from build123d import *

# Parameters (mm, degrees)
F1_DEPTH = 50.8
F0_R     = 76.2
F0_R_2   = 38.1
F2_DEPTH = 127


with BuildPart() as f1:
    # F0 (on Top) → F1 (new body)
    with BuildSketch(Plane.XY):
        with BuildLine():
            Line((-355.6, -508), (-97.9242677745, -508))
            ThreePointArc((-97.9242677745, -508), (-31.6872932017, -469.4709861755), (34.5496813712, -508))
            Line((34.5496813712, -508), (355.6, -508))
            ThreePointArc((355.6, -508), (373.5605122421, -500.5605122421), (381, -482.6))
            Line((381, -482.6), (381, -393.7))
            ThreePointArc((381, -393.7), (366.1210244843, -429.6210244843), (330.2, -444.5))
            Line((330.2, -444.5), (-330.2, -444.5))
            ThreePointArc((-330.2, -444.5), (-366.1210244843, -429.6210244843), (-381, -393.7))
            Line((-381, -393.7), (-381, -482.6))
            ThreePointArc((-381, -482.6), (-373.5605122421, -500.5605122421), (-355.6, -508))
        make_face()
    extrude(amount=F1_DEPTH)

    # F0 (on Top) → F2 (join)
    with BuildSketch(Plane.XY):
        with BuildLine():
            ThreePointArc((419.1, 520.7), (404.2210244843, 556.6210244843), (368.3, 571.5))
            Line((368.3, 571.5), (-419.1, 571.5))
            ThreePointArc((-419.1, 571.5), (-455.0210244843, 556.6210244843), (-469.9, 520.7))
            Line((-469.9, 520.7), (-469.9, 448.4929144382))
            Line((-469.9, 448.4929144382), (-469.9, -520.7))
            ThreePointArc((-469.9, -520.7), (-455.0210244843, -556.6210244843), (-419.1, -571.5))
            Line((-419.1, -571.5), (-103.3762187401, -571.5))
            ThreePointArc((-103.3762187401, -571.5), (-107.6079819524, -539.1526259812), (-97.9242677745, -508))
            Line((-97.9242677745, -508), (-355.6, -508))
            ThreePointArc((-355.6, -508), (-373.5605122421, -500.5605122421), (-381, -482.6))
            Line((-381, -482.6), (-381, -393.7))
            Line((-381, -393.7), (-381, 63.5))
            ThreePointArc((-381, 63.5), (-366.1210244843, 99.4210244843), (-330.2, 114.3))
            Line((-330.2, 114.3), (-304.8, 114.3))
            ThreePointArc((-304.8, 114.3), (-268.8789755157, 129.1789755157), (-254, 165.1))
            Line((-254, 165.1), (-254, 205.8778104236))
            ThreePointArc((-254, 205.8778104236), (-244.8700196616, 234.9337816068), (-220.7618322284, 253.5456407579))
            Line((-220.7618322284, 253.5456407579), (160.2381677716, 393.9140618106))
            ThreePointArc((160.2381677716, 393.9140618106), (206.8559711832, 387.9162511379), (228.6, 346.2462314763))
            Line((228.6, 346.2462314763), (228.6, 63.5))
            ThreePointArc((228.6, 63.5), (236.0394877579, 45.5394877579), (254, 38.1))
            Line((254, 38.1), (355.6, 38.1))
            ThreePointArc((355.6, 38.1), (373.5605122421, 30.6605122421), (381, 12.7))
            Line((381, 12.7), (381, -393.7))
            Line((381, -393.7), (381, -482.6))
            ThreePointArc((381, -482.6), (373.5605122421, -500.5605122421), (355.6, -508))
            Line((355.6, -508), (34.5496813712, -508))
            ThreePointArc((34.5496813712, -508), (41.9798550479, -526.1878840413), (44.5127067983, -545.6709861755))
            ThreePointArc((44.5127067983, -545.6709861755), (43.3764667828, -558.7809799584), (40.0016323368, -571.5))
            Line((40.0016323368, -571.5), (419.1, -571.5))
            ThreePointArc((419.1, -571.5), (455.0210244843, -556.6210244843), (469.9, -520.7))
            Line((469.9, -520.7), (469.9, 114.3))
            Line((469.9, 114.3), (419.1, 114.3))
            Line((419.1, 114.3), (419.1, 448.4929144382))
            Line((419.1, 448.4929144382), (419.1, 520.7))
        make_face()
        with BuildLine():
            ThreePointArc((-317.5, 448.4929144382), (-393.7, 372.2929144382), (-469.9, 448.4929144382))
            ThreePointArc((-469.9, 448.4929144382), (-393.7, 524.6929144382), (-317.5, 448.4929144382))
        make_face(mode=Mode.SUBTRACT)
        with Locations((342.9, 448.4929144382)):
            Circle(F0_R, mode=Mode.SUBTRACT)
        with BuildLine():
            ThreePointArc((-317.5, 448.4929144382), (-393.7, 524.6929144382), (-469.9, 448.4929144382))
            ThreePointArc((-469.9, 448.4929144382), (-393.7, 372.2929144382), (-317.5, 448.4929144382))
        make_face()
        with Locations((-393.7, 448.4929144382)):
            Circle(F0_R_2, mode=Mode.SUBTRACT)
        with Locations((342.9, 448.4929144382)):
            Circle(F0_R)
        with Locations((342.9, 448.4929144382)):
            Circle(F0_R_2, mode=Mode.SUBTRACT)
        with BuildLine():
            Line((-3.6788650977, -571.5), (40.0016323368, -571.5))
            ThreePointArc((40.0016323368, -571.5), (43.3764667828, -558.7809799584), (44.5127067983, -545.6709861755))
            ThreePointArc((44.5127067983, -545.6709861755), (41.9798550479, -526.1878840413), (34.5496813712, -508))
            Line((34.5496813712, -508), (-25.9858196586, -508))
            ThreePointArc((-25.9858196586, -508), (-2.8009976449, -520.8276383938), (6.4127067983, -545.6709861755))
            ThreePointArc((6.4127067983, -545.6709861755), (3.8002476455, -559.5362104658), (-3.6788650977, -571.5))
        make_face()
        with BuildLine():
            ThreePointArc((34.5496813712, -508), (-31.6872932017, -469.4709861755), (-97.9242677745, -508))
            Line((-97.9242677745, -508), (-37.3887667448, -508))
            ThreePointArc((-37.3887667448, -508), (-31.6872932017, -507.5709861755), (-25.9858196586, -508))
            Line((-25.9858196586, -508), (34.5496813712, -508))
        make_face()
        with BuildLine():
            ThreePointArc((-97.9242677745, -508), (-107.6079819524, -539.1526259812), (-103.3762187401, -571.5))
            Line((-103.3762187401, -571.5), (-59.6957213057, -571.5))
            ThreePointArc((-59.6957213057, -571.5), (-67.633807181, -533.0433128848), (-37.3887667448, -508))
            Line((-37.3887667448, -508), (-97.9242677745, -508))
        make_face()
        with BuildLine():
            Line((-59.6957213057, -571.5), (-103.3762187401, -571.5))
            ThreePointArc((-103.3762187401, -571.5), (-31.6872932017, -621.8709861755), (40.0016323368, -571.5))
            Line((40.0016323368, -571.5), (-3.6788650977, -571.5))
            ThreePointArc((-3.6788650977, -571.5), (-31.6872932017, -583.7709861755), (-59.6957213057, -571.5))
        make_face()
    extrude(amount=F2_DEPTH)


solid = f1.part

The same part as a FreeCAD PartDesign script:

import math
import FreeCAD as App
import Part
import Sketcher
from FreeCAD import Vector
Q = App.Units.Quantity

doc = App.newDocument("Part")
body = doc.addObject("PartDesign::Body", "Body")

# Sketch on XY plane
sketch1 = body.newObject("Sketcher::SketchObject", "Sketch")
sketch1.AttachmentSupport = (doc.getObject("XY_Plane"), [""])
sketch1.MapMode = "FlatFace"
sketch1.addGeometry([
    Part.LineSegment(Vector(-356, -508, 0), Vector(-98, -508, 0)),  # 0
    Part.ArcOfCircle(Part.Circle(Vector(-32, -546, 0), Vector(0, 0, 1), 76), math.radians(30), math.radians(150)),  # 1
    Part.LineSegment(Vector(35, -508, 0), Vector(356, -508, 0)),  # 2
    Part.ArcOfCircle(Part.Circle(Vector(356, -483, 0), Vector(0, 0, 1), 25), math.radians(-90), math.radians(0)),  # 3
    Part.LineSegment(Vector(381, -483, 0), Vector(381, -394, 0)),  # 4
    Part.ArcOfCircle(Part.Circle(Vector(330, -394, 0), Vector(0, 0, 1), 51), math.radians(-90), math.radians(0)),  # 5
    Part.LineSegment(Vector(330, -444, 0), Vector(-330, -444, 0)),  # 6
    Part.ArcOfCircle(Part.Circle(Vector(-330, -394, 0), Vector(0, 0, 1), 51), math.radians(180), math.radians(270)),  # 7
    Part.LineSegment(Vector(-381, -394, 0), Vector(-381, -483, 0)),  # 8
    Part.ArcOfCircle(Part.Circle(Vector(-356, -483, 0), Vector(0, 0, 1), 25), math.radians(180), math.radians(270)),  # 9
], False)
sketch1.addConstraint([
    Sketcher.Constraint("Coincident", 0, 2, 1, 2),
    Sketcher.Constraint("Coincident", 1, 1, 2, 1),
    Sketcher.Constraint("Tangent", 2, 2, 3, 1),
    Sketcher.Constraint("Tangent", 3, 2, 4, 1),
    Sketcher.Constraint("Tangent", 4, 2, 5, 2),
    Sketcher.Constraint("Tangent", 5, 1, 6, 1),
    Sketcher.Constraint("Tangent", 6, 2, 7, 2),
    Sketcher.Constraint("Tangent", 7, 1, 8, 1),
    Sketcher.Constraint("Tangent", 8, 2, 9, 1),
    Sketcher.Constraint("Tangent", 9, 2, 0, 1),
    Sketcher.Constraint("Horizontal", 0),
    Sketcher.Constraint("Horizontal", 2),
    Sketcher.Constraint("Vertical", 4),
    Sketcher.Constraint("Horizontal", 6),
    Sketcher.Constraint("Vertical", 8),
    Sketcher.Constraint("Equal", 5, 7),
    Sketcher.Constraint("Equal", 3, 9),
    Sketcher.Constraint("Symmetric", 3, 3, 9, 3, -2),
    Sketcher.Constraint("Radius", 1, Q("3 in")),
    Sketcher.Constraint("Radius", 3, Q("1 in")),
    Sketcher.Constraint("Radius", 5, Q("2 in")),
    Sketcher.Constraint("DistanceX", 6, 2, 6, 1, Q("26 in")),
    Sketcher.Constraint("DistanceY", 4, 1, 4, 2, Q("3.5 in")),
    Sketcher.Constraint("DistanceY", 3, 3, -1, 1, Q("19 in")),
    Sketcher.Constraint("DistanceX", 2, 1, 2, 2, Q("321.050319 mm")),
    Sketcher.Constraint("DistanceX", 0, 1, 0, 2, Q("257.675732 mm")),
])
pad1 = body.newObject("PartDesign::Pad", "Pad")
pad1.Profile = sketch1
pad1.Length = Q("2 in")

# Sketch on XY plane
sketch2 = body.newObject("Sketcher::SketchObject", "Sketch001")
sketch2.AttachmentSupport = (doc.getObject("XY_Plane"), [""])
sketch2.MapMode = "FlatFace"
sketch2.addGeometry([
    Part.LineSegment(Vector(-419, -572, 0), Vector(-103, -572, 0)),  # 0
    Part.ArcOfCircle(Part.Circle(Vector(-32, -546, 0), Vector(0, 0, 1), 76), math.radians(-160), math.radians(-20)),  # 1
    Part.LineSegment(Vector(40, -572, 0), Vector(419, -572, 0)),  # 2
    Part.ArcOfCircle(Part.Circle(Vector(419, -521, 0), Vector(0, 0, 1), 51), math.radians(-90), math.radians(0)),  # 3
    Part.LineSegment(Vector(470, -521, 0), Vector(470, 114, 0)),  # 4
    Part.LineSegment(Vector(470, 114, 0), Vector(419, 114, 0)),  # 5
    Part.LineSegment(Vector(419, 114, 0), Vector(419, 521, 0)),  # 6
    Part.ArcOfCircle(Part.Circle(Vector(368, 521, 0), Vector(0, 0, 1), 51), math.radians(0), math.radians(90)),  # 7
    Part.LineSegment(Vector(368, 572, 0), Vector(-419, 572, 0)),  # 8
    Part.ArcOfCircle(Part.Circle(Vector(-419, 521, 0), Vector(0, 0, 1), 51), math.radians(90), math.radians(180)),  # 9
    Part.LineSegment(Vector(-470, 521, 0), Vector(-470, -521, 0)),  # 10
    Part.ArcOfCircle(Part.Circle(Vector(-419, -521, 0), Vector(0, 0, 1), 51), math.radians(180), math.radians(270)),  # 11
    Part.ArcOfCircle(Part.Circle(Vector(-32, -546, 0), Vector(0, 0, 1), 38), math.radians(99), math.radians(223)),  # 12
    Part.ArcOfCircle(Part.Circle(Vector(-32, -546, 0), Vector(0, 0, 1), 38), math.radians(81.39), math.radians(98.61)),  # 13
    Part.ArcOfCircle(Part.Circle(Vector(-32, -546, 0), Vector(0, 0, 1), 38), math.radians(-43), math.radians(81)),  # 14
    Part.ArcOfCircle(Part.Circle(Vector(-32, -546, 0), Vector(0, 0, 1), 38), math.radians(-137), math.radians(-43)),  # 15
    Part.ArcOfCircle(Part.Circle(Vector(-32, -546, 0), Vector(0, 0, 1), 76), math.radians(30), math.radians(150)),  # 16
    Part.LineSegment(Vector(-98, -508, 0), Vector(-356, -508, 0)),  # 17
    Part.ArcOfCircle(Part.Circle(Vector(-356, -483, 0), Vector(0, 0, 1), 25), math.radians(180), math.radians(270)),  # 18
    Part.LineSegment(Vector(-381, -483, 0), Vector(-381, 64, 0)),  # 19
    Part.ArcOfCircle(Part.Circle(Vector(-330, 64, 0), Vector(0, 0, 1), 51), math.radians(90), math.radians(180)),  # 20
    Part.LineSegment(Vector(-330, 114, 0), Vector(-305, 114, 0)),  # 21
    Part.ArcOfCircle(Part.Circle(Vector(-305, 165, 0), Vector(0, 0, 1), 51), math.radians(-90), math.radians(0)),  # 22
    Part.LineSegment(Vector(-254, 165, 0), Vector(-254, 206, 0)),  # 23
    Part.ArcOfCircle(Part.Circle(Vector(-203, 206, 0), Vector(0, 0, 1), 51), math.radians(110), math.radians(180)),  # 24
    Part.LineSegment(Vector(-221, 254, 0), Vector(160, 394, 0)),  # 25
    Part.ArcOfCircle(Part.Circle(Vector(178, 346, 0), Vector(0, 0, 1), 51), math.radians(0), math.radians(110)),  # 26
    Part.LineSegment(Vector(229, 346, 0), Vector(229, 64, 0)),  # 27
    Part.ArcOfCircle(Part.Circle(Vector(254, 64, 0), Vector(0, 0, 1), 25), math.radians(180), math.radians(270)),  # 28
    Part.LineSegment(Vector(254, 38, 0), Vector(356, 38, 0)),  # 29
    Part.ArcOfCircle(Part.Circle(Vector(356, 13, 0), Vector(0, 0, 1), 25), math.radians(0), math.radians(90)),  # 30
    Part.LineSegment(Vector(381, 13, 0), Vector(381, -483, 0)),  # 31
    Part.ArcOfCircle(Part.Circle(Vector(356, -483, 0), Vector(0, 0, 1), 25), math.radians(-90), math.radians(0)),  # 32
    Part.LineSegment(Vector(356, -508, 0), Vector(35, -508, 0)),  # 33
    Part.Circle(Vector(-394, 448, 0), Vector(0, 0, 1), 38),  # 34
    Part.Circle(Vector(343, 448, 0), Vector(0, 0, 1), 38),  # 35
], False)
sketch2.addConstraint([
    Sketcher.Constraint("Coincident", 0, 2, 1, 1),
    Sketcher.Constraint("Coincident", 1, 2, 2, 1),
    Sketcher.Constraint("Tangent", 2, 2, 3, 1),
    Sketcher.Constraint("Tangent", 3, 2, 4, 1),
    Sketcher.Constraint("Coincident", 4, 2, 5, 1),
    Sketcher.Constraint("Coincident", 5, 2, 6, 1),
    Sketcher.Constraint("Tangent", 6, 2, 7, 1),
    Sketcher.Constraint("Tangent", 7, 2, 8, 1),
    Sketcher.Constraint("Tangent", 8, 2, 9, 1),
    Sketcher.Constraint("Tangent", 9, 2, 10, 1),
    Sketcher.Constraint("Tangent", 10, 2, 11, 1),
    Sketcher.Constraint("Tangent", 11, 2, 0, 1),
    Sketcher.Constraint("Tangent", 12, 1, 13, 2),
    Sketcher.Constraint("Tangent", 13, 1, 14, 2),
    Sketcher.Constraint("Tangent", 14, 1, 15, 2),
    Sketcher.Constraint("Tangent", 15, 1, 12, 2),
    Sketcher.Constraint("Coincident", 16, 2, 17, 1),
    Sketcher.Constraint("Tangent", 17, 2, 18, 2),
    Sketcher.Constraint("Tangent", 18, 1, 19, 1),
    Sketcher.Constraint("Tangent", 19, 2, 20, 2),
    Sketcher.Constraint("Tangent", 20, 1, 21, 1),
    Sketcher.Constraint("Tangent", 21, 2, 22, 1),
    Sketcher.Constraint("Tangent", 22, 2, 23, 1),
    Sketcher.Constraint("Tangent", 23, 2, 24, 2),
    Sketcher.Constraint("Tangent", 24, 1, 25, 1),
    Sketcher.Constraint("Tangent", 25, 2, 26, 2),
    Sketcher.Constraint("Tangent", 26, 1, 27, 1),
    Sketcher.Constraint("Tangent", 27, 2, 28, 1),
    Sketcher.Constraint("Tangent", 28, 2, 29, 1),
    Sketcher.Constraint("Tangent", 29, 2, 30, 2),
    Sketcher.Constraint("Tangent", 30, 1, 31, 1),
    Sketcher.Constraint("Tangent", 31, 2, 32, 2),
    Sketcher.Constraint("Tangent", 32, 1, 33, 1),
    Sketcher.Constraint("Coincident", 33, 2, 16, 1),
    Sketcher.Constraint("Horizontal", 0),
    Sketcher.Constraint("Horizontal", 2),
    Sketcher.Constraint("Vertical", 4),
    Sketcher.Constraint("Horizontal", 5),
    Sketcher.Constraint("Vertical", 6),
    Sketcher.Constraint("Horizontal", 8),
    Sketcher.Constraint("Vertical", 10),
    Sketcher.Constraint("Horizontal", 17),
    Sketcher.Constraint("Vertical", 19),
    Sketcher.Constraint("Horizontal", 21),
    Sketcher.Constraint("Vertical", 23),
    Sketcher.Constraint("Vertical", 27),
    Sketcher.Constraint("Horizontal", 29),
    Sketcher.Constraint("Vertical", 31),
    Sketcher.Constraint("Horizontal", 33),
    Sketcher.Constraint("Coincident", 12, 3, 1, 3),
    Sketcher.Constraint("Coincident", 16, 3, 1, 3),
    Sketcher.Constraint("Equal", 3, 7),
    Sketcher.Constraint("Equal", 7, 9),
    Sketcher.Constraint("Equal", 9, 11),
    Sketcher.Constraint("Equal", 12, 13),
    Sketcher.Constraint("Equal", 1, 16),
    Sketcher.Constraint("Equal", 11, 20),
    Sketcher.Constraint("Equal", 20, 22),
    Sketcher.Constraint("Equal", 22, 24),
    Sketcher.Constraint("Equal", 24, 26),
    Sketcher.Constraint("Equal", 18, 28),
    Sketcher.Constraint("Equal", 28, 30),
    Sketcher.Constraint("Equal", 30, 32),
    Sketcher.Constraint("Equal", 15, 34),
    Sketcher.Constraint("Equal", 34, 35),
    Sketcher.Constraint("Symmetric", 3, 3, 9, 3, -1, 1),
    Sketcher.Constraint("Symmetric", 18, 3, 32, 3, -2),
    Sketcher.Constraint("Horizontal", 3, 3, 11, 3),
    Sketcher.Constraint("Horizontal", 20, 3, 28, 3),
    Sketcher.Constraint("Horizontal", 34, 3, 35, 3),
    Sketcher.Constraint("Horizontal", 12, 1, 13, 1),
    Sketcher.Constraint("Horizontal", 11, 2, 14, 1),
    Sketcher.Constraint("Horizontal", 14, 1, 15, 1),
    Sketcher.Constraint("Horizontal", 13, 1, 16, 2),
    Sketcher.Constraint("Horizontal", 5, 2, 20, 1),
    Sketcher.Constraint("Vertical", 2, 2, 5, 2),
    Sketcher.Constraint("Diameter", 34, Q("3 in")),
    Sketcher.Constraint("Radius", 1, Q("3 in")),
    Sketcher.Constraint("Radius", 3, Q("2 in")),
    Sketcher.Constraint("Radius", 18, Q("1 in")),
    Sketcher.Constraint("DistanceX", 8, 2, 8, 1, Q("31 in")),
    Sketcher.Constraint("DistanceX", 21, 1, 21, 2, Q("1 in")),
    Sketcher.Constraint("DistanceX", 29, 1, 29, 2, Q("4 in")),
    Sketcher.Constraint("DistanceY", 4, 1, 4, 2, Q("25 in")),
    Sketcher.Constraint("DistanceY", 6, 1, 6, 2, Q("16 in")),
    Sketcher.Constraint("DistanceY", 19, 1, 19, 2, Q("21.5 in")),
    Sketcher.Constraint("DistanceX", 18, 3, -1, 1, Q("14 in")),
    Sketcher.Constraint("DistanceX", 9, 3, 34, 3, Q("1 in")),
    Sketcher.Constraint("DistanceX", 35, 3, 7, 3, Q("1 in")),
    Sketcher.Constraint("DistanceX", 0, 1, 0, 2, Q("315.723781 mm")),
    Sketcher.Constraint("DistanceX", 33, 2, 33, 1, Q("321.050319 mm")),
    Sketcher.Constraint("DistanceY", 23, 1, 23, 2, Q("40.77781 mm")),
    Sketcher.Constraint("DistanceY", 27, 2, 27, 1, Q("282.746231 mm")),
    Sketcher.Constraint("DistanceY", -1, 1, 34, 3, Q("448.492914 mm")),
])
pad2 = body.newObject("PartDesign::Pad", "Pad001")
pad2.Profile = sketch2
pad2.Length = Q("5 in")

doc.recompute()
